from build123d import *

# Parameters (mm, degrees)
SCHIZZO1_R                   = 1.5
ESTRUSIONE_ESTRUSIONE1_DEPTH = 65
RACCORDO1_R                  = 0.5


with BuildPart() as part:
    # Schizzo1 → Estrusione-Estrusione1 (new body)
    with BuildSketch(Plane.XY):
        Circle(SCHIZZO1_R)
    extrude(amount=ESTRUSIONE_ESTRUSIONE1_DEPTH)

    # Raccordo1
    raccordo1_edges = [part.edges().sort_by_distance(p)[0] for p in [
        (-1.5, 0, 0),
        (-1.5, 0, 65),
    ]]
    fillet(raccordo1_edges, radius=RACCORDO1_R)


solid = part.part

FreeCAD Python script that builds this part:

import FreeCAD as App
import Part
import Sketcher
from FreeCAD import Vector
Q = App.Units.Quantity


def edges_at(feature, points):
    """Names of the edges that pass closest to the given points."""
    edges = feature.Shape.Edges
    near = lambda p: min(range(len(edges)), key=lambda i: edges[i].distToShape(Part.Vertex(*p))[0])
    return sorted({f"Edge{near(p) + 1}" for p in points})

doc = App.newDocument("Part")
params = doc.addObject("Spreadsheet::Sheet", "Params")
for row, (alias, value) in enumerate([
    ("sketch1_diameter", "3 mm"),
    ("pad1_length", "65 mm"),
    ("fillet_radius", "0.5 mm"),
], start=1):
    params.set(f"A{row}", alias)
    params.set(f"B{row}", "=" + value)
    params.setAlias(f"B{row}", alias)

body = doc.addObject("PartDesign::Body", "Body")

# Sketch on XY plane
sketch1 = doc.addObject("Sketcher::SketchObject", "Sketch")
body.addObject(sketch1)
sketch1.AttachmentSupport = (doc.XY_Plane, [""])
sketch1.MapMode = "FlatFace"
sketch1.addGeometry(Part.Circle(Vector(0, 0, 0), Vector(0, 0, 1), 1.5), False)
sketch1.addConstraint(Sketcher.Constraint("Coincident", 0, 3, -1, 1))
sketch1.addConstraint(Sketcher.Constraint("Diameter", 0, Q("3 mm")))
sketch1.setExpression("Constraints[1]", "Params.sketch1_diameter")
pad1 = doc.addObject("PartDesign::Pad", "Pad")
body.addObject(pad1)
pad1.Profile = sketch1
pad1.setExpression("Length", "Params.pad1_length")
doc.recompute()

fillet = doc.addObject("PartDesign::Fillet", "Fillet")
body.addObject(fillet)
fillet.Base = (pad1, edges_at(pad1, [(-1.5, 0, 0), (-1.5, 0, 65)]))
fillet.setExpression("Radius", "Params.fillet_radius")

doc.recompute()
